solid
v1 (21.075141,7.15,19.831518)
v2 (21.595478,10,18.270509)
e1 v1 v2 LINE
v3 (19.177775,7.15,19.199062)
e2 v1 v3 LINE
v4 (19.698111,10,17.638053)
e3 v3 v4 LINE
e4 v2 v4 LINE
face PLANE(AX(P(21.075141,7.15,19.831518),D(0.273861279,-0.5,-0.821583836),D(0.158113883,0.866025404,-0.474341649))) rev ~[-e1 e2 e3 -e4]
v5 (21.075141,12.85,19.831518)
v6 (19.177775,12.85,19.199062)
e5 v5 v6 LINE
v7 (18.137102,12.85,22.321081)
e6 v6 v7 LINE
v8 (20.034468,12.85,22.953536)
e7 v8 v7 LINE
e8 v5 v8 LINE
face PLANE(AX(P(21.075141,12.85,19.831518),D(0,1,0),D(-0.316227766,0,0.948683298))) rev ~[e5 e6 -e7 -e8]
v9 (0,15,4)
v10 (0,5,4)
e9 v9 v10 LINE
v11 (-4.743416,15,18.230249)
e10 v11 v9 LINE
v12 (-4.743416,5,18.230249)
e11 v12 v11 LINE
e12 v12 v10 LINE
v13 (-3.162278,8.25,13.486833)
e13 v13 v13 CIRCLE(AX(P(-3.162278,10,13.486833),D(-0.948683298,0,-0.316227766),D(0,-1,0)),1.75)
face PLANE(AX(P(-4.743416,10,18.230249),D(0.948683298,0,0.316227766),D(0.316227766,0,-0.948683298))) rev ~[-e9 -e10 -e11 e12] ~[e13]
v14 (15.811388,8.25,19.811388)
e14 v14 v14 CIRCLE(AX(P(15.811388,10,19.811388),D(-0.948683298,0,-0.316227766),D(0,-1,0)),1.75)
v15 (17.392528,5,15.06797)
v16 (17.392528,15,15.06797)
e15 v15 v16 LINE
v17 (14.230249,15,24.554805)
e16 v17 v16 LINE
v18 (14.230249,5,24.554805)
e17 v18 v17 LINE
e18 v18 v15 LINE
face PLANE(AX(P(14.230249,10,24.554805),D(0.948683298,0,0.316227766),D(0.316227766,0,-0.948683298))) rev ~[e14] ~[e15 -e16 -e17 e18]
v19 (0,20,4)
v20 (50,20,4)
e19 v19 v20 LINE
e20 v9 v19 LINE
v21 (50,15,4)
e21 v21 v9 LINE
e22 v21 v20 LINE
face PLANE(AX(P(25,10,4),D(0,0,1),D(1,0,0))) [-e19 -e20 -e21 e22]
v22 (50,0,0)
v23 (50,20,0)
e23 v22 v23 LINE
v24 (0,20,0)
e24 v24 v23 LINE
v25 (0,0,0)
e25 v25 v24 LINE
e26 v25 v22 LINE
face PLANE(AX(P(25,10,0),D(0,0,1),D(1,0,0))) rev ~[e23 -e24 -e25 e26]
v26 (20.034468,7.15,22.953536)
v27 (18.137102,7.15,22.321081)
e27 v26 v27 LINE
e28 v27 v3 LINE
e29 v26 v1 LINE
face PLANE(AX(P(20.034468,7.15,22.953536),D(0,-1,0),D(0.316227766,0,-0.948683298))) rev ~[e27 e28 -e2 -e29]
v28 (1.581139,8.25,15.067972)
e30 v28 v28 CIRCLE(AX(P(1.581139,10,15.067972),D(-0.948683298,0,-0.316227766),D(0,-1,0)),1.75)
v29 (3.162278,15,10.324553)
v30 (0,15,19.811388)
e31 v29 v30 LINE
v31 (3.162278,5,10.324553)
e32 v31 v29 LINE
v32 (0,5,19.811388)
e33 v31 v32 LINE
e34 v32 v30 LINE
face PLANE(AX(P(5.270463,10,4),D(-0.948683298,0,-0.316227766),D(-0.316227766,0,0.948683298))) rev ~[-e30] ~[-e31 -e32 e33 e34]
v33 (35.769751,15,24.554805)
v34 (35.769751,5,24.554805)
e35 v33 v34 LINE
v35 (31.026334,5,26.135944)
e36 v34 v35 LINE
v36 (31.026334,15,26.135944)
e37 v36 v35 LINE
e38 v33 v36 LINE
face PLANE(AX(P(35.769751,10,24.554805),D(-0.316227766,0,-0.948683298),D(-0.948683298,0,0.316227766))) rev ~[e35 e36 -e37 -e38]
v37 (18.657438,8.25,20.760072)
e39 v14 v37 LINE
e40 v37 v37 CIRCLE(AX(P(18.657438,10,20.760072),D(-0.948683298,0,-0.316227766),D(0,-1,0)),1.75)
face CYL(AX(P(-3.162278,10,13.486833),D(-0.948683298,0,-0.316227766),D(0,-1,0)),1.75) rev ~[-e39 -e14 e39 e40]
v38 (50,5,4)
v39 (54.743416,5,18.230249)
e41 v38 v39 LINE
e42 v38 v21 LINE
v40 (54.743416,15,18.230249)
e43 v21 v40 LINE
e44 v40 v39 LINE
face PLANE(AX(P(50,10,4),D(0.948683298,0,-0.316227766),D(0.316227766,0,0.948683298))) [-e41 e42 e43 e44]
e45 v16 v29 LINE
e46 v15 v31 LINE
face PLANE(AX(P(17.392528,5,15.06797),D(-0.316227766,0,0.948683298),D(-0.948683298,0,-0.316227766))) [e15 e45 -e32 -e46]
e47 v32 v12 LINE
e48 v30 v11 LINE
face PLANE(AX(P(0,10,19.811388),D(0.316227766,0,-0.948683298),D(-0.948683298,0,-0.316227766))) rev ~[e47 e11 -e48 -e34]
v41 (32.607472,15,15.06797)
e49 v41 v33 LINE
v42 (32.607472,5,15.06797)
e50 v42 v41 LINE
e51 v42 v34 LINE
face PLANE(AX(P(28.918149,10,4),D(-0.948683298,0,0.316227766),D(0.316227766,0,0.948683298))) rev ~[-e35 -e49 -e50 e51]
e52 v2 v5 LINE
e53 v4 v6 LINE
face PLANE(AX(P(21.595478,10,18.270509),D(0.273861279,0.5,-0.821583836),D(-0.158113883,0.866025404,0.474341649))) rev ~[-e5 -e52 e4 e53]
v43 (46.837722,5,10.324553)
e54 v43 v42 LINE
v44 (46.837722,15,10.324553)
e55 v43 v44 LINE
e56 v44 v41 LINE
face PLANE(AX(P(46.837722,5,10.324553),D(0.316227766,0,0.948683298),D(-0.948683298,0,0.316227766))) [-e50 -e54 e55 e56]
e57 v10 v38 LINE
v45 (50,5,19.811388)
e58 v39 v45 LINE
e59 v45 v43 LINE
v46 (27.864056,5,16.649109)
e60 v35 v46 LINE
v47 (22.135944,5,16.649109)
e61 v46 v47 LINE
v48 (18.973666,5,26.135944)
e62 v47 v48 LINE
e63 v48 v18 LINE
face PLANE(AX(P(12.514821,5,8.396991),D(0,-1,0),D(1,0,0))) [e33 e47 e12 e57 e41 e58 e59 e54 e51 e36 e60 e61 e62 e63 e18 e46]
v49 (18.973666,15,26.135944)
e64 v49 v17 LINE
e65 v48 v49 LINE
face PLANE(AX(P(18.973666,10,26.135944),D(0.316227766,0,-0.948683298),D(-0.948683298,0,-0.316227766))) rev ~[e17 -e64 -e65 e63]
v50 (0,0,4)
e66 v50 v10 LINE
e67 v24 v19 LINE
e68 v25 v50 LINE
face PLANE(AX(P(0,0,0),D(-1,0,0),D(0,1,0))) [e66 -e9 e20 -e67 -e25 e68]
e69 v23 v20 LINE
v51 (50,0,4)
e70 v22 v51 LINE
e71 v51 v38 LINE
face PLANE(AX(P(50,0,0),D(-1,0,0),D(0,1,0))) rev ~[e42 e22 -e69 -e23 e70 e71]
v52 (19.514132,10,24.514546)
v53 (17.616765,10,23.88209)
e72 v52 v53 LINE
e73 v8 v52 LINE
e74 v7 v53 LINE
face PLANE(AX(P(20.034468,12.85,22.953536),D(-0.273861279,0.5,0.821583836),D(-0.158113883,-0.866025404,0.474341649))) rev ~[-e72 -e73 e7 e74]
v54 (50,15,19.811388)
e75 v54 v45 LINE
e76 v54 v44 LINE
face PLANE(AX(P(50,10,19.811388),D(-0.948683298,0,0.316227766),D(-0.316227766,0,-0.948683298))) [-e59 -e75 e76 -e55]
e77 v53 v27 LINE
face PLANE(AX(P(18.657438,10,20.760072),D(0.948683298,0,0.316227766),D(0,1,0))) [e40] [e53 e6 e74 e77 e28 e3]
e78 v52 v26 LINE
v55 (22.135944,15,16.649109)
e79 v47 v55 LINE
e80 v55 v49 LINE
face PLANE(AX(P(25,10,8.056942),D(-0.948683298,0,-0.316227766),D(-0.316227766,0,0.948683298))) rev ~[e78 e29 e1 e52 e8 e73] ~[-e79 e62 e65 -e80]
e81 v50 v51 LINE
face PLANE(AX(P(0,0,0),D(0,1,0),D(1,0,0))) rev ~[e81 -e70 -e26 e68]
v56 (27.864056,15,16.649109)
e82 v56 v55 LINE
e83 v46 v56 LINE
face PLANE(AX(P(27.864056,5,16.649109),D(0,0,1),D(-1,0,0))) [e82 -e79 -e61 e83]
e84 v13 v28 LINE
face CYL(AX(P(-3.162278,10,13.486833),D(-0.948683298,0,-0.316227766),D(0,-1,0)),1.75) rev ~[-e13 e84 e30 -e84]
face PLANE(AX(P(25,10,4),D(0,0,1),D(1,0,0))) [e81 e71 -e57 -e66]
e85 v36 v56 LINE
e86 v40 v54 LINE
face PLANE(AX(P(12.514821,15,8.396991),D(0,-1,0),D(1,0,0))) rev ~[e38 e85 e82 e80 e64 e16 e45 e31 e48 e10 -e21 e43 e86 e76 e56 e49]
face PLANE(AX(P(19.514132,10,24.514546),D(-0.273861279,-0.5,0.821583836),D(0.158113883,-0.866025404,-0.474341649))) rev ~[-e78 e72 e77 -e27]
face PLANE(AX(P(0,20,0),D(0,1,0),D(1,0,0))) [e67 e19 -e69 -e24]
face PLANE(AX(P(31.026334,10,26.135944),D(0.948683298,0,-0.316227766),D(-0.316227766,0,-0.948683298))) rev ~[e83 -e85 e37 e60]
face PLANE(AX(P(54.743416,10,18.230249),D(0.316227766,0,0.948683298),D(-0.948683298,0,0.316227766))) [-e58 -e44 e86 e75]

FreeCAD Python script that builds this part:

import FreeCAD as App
import Part
import Sketcher

V = App.Vector
Q = App.Units.Quantity

doc = App.newDocument("Part")
params = doc.addObject("Spreadsheet::Sheet", "Params")
for row, (alias, value) in enumerate([
    ("sketch1_width", "50 mm"),
    ("sketch1_height", "20 mm"),
    ("pad1_length", "4 mm"),
    ("sketch2_length", "15 mm"),
    ("sketch2_length2", "5 mm"),
    ("pad2_length", "10 mm"),
    ("sketch3_diameter", "3.5 mm"),
    ("pocket1_length", "25 mm"),
    ("pocket2_length", "2 mm"),
    ("pad3_length", "10 mm"),
    ("sketch6_length", "15 mm"),
], start=1):
    params.set(f"A{row}", alias)
    params.set(f"B{row}", "=" + value)
    params.setAlias(f"B{row}", alias)

body = doc.addObject("PartDesign::Body", "Body")

# Sketch on XY plane
sketch1 = body.newObject("Sketcher::SketchObject", "Sketch")
sketch1.AttachmentSupport = (doc.getObject("XY_Plane"), [""])
sketch1.MapMode = "FlatFace"
sketch1.addGeometry(Part.LineSegment(V(0, 20, 0), V(0, 0, 0)), False)
sketch1.addGeometry(Part.LineSegment(V(0, 0, 0), V(50, 0, 0)), False)
sketch1.addGeometry(Part.LineSegment(V(50, 0, 0), V(50, 20, 0)), False)
sketch1.addGeometry(Part.LineSegment(V(50, 20, 0), V(0, 20, 0)), False)
sketch1.addConstraint(Sketcher.Constraint("Coincident", 0, 2, 1, 1))
sketch1.addConstraint(Sketcher.Constraint("Coincident", 1, 2, 2, 1))
sketch1.addConstraint(Sketcher.Constraint("Coincident", 2, 2, 3, 1))
sketch1.addConstraint(Sketcher.Constraint("Coincident", 3, 2, 0, 1))
sketch1.addConstraint(Sketcher.Constraint("Vertical", 0))
sketch1.addConstraint(Sketcher.Constraint("Horizontal", 1))
sketch1.addConstraint(Sketcher.Constraint("Vertical", 2))
sketch1.addConstraint(Sketcher.Constraint("Horizontal", 3))
sketch1.addConstraint(Sketcher.Constraint("Coincident", 0, 2, -1, 1))
sketch1.addConstraint(Sketcher.Constraint("DistanceX", 1, 1, 1, 2, Q("50 mm")))
sketch1.addConstraint(Sketcher.Constraint("DistanceY", 0, 2, 0, 1, Q("20 mm")))
sketch1.setExpression("Constraints[9]", "Params.sketch1_width")
sketch1.setExpression("Constraints[10]", "Params.sketch1_height")
pad1 = body.newObject("PartDesign::Pad", "Pad")
pad1.Profile = sketch1
pad1.setExpression("Length", "Params.pad1_length")

# Sketch on XZ plane
sketch2 = body.newObject("Sketcher::SketchObject", "Sketch001")
sketch2.AttachmentSupport = (doc.getObject("XZ_Plane"), [""])
sketch2.MapMode = "FlatFace"
sketch2.AttachmentOffset = App.Placement(V(0, 0, -10), App.Rotation())
sketch2.addGeometry(Part.LineSegment(V(-4.743416, 18.230249, 0), V(0, 4, 0)), False)
sketch2.addGeometry(Part.LineSegment(V(0, 4, 0), V(5.270463, 4, 0)), False)
sketch2.addGeometry(Part.LineSegment(V(5.270463, 4, 0), V(0, 19.811388, 0)), False)
sketch2.addGeometry(Part.LineSegment(V(0, 19.811388, 0), V(-4.743416, 18.230249, 0)), False)
sketch2.addGeometry(Part.LineSegment(V(14.230249, 24.554805, 0), V(21.081851, 4, 0)), False)
sketch2.addGeometry(Part.LineSegment(V(21.081851, 4, 0), V(28.918149, 4, 0)), False)
sketch2.addGeometry(Part.LineSegment(V(28.918149, 4, 0), V(35.769751, 24.554805, 0)), False)
sketch2.addGeometry(Part.LineSegment(V(35.769751, 24.554805, 0), V(31.026334, 26.135944, 0)), False)
sketch2.addGeometry(Part.LineSegment(V(31.026334, 26.135944, 0), V(25, 8.056942, 0)), False)
sketch2.addGeometry(Part.LineSegment(V(25, 8.056942, 0), V(18.973666, 26.135944, 0)), False)
sketch2.addGeometry(Part.LineSegment(V(18.973666, 26.135944, 0), V(14.230249, 24.554805, 0)), False)
sketch2.addGeometry(Part.LineSegment(V(50, 4, 0), V(54.743416, 18.230249, 0)), False)
sketch2.addGeometry(Part.LineSegment(V(54.743416, 18.230249, 0), V(50, 19.811388, 0)), False)
sketch2.addGeometry(Part.LineSegment(V(50, 19.811388, 0), V(44.729537, 4, 0)), False)
sketch2.addGeometry(Part.LineSegment(V(44.729537, 4, 0), V(50, 4, 0)), False)
sketch2.addConstraint(Sketcher.Constraint("Coincident", 0, 2, 1, 1))
sketch2.addConstraint(Sketcher.Constraint("Coincident", 1, 2, 2, 1))
sketch2.addConstraint(Sketcher.Constraint("Coincident", 2, 2, 3, 1))
sketch2.addConstraint(Sketcher.Constraint("Coincident", 3, 2, 0, 1))
sketch2.addConstraint(Sketcher.Constraint("Coincident", 4, 2, 5, 1))
sketch2.addConstraint(Sketcher.Constraint("Coincident", 5, 2, 6, 1))
sketch2.addConstraint(Sketcher.Constraint("Coincident", 6, 2, 7, 1))
sketch2.addConstraint(Sketcher.Constraint("Coincident", 7, 2, 8, 1))
sketch2.addConstraint(Sketcher.Constraint("Coincident", 8, 2, 9, 1))
sketch2.addConstraint(Sketcher.Constraint("Coincident", 9, 2, 10, 1))
sketch2.addConstraint(Sketcher.Constraint("Coincident", 10, 2, 4, 1))
sketch2.addConstraint(Sketcher.Constraint("Coincident", 11, 2, 12, 1))
sketch2.addConstraint(Sketcher.Constraint("Coincident", 12, 2, 13, 1))
sketch2.addConstraint(Sketcher.Constraint("Coincident", 13, 2, 14, 1))
sketch2.addConstraint(Sketcher.Constraint("Coincident", 14, 2, 11, 1))
sketch2.addConstraint(Sketcher.Constraint("Horizontal", 1))
sketch2.addConstraint(Sketcher.Constraint("Horizontal", 5))
sketch2.addConstraint(Sketcher.Constraint("Horizontal", 14))
sketch2.addConstraint(Sketcher.Constraint("PointOnObject", 0, 2, -2))
sketch2.addConstraint(Sketcher.Constraint("PointOnObject", 2, 2, -2))
sketch2.addConstraint(Sketcher.Constraint("Parallel", 0, 2))
sketch2.addConstraint(Sketcher.Constraint("Perpendicular", 2, 3))
sketch2.addConstraint(Sketcher.Constraint("Perpendicular", 3, 4))
sketch2.addConstraint(Sketcher.Constraint("Perpendicular", 6, 7))
sketch2.addConstraint(Sketcher.Constraint("Perpendicular", 7, 8))
sketch2.addConstraint(Sketcher.Constraint("Parallel", 4, 9))
sketch2.addConstraint(Sketcher.Constraint("Perpendicular", 9, 10))
sketch2.addConstraint(Sketcher.Constraint("Parallel", 8, 11))
sketch2.addConstraint(Sketcher.Constraint("Perpendicular", 11, 12))
sketch2.addConstraint(Sketcher.Constraint("Perpendicular", 12, 13))
sketch2.addConstraint(Sketcher.Constraint("Horizontal", 1, 2, 4, 2))
sketch2.addConstraint(Sketcher.Constraint("Horizontal", 7, 2, 9, 2))
sketch2.addConstraint(Sketcher.Constraint("Horizontal", 6, 2, 10, 2))
sketch2.addConstraint(Sketcher.Constraint("Horizontal", 3, 2, 11, 2))
sketch2.addConstraint(Sketcher.Constraint("Horizontal", 2, 2, 12, 2))
sketch2.addConstraint(Sketcher.Constraint("Horizontal", 5, 2, 13, 2))
sketch2.addConstraint(Sketcher.Constraint("Vertical", 12, 2, 14, 2))
sketch2.addConstraint(Sketcher.Constraint("Equal", 3, 7))
sketch2.addConstraint(Sketcher.Constraint("Distance", 0, Q("15 mm")))
sketch2.addConstraint(Sketcher.Constraint("Distance", 3, Q("5 mm")))
sketch2.addConstraint(Sketcher.Constraint("DistanceY", -1, 1, 0, 2, Q("4 mm")))
sketch2.addConstraint(Sketcher.Constraint("DistanceX", -1, 1, 8, 2, Q("25 mm")))
sketch2.addConstraint(Sketcher.Constraint("DistanceX", -1, 1, 12, 2, Q("50 mm")))
sketch2.addConstraint(Sketcher.Constraint("DistanceX", 5, 2, 6, 2, Q("6.851602 mm")))
sketch2.addConstraint(Sketcher.Constraint("DistanceX", 4, 2, 6, 2, Q("14.687899 mm")))
sketch2.setExpression("Constraints[38]", "Params.sketch2_length")
sketch2.setExpression("Constraints[39]", "Params.sketch2_length2")
pad2 = body.newObject("PartDesign::Pad", "Pad001")
pad2.Profile = sketch2
pad2.setExpression("Length", "Params.pad2_length")
pad2.Midplane = True

# Sketch on an angled plane
sketch3 = body.newObject("Sketcher::SketchObject", "Sketch002")
sketch3.Placement = App.Placement(V(1.2, 0, 0.4), App.Rotation(V(0, -1, 0), V(-0.316227766, 0, 0.948683298), V(-0.948683298, 0, -0.316227766), "ZXY"))
sketch3.addGeometry(Part.Circle(V(-10, 13.794733, 0), V(0, 0, 1), 1.75), False)
sketch3.addConstraint(Sketcher.Constraint("Diameter", 0, Q("3.5 mm")))
sketch3.addConstraint(Sketcher.Constraint("DistanceX", 0, 3, -1, 1, Q("10 mm")))
sketch3.addConstraint(Sketcher.Constraint("DistanceY", -1, 1, 0, 3, Q("13.794733 mm")))
sketch3.setExpression("Constraints[0]", "Params.sketch3_diameter")
pocket1 = body.newObject("PartDesign::Pocket", "Pocket")
pocket1.Profile = sketch3
pocket1.setExpression("Length", "Params.pocket1_length")

# Sketch on an angled plane
sketch4 = body.newObject("Sketcher::SketchObject", "Sketch003")
sketch4.Placement = App.Placement(V(24.917082, 0, 8.305694), App.Rotation(V(0, 1, 0), V(-0.316227766, 0, 0.948683298), V(0.948683298, 0, 0.316227766), "ZXY"))
sketch4.addGeometry(Part.LineSegment(V(12.85, 12.149285, 0), V(12.85, 15.440181, 0)), False)
sketch4.addGeometry(Part.LineSegment(V(12.85, 15.440181, 0), V(10, 17.08563, 0)), False)
sketch4.addGeometry(Part.LineSegment(V(10, 17.08563, 0), V(7.15, 15.440181, 0)), False)
sketch4.addGeometry(Part.LineSegment(V(7.15, 15.440181, 0), V(7.15, 12.149285, 0)), False)
sketch4.addGeometry(Part.LineSegment(V(7.15, 12.149285, 0), V(10, 10.503837, 0)), False)
sketch4.addGeometry(Part.LineSegment(V(10, 10.503837, 0), V(12.85, 12.149285, 0)), False)
sketch4.addConstraint(Sketcher.Constraint("Coincident", 0, 2, 1, 1))
sketch4.addConstraint(Sketcher.Constraint("Coincident", 1, 2, 2, 1))
sketch4.addConstraint(Sketcher.Constraint("Coincident", 2, 2, 3, 1))
sketch4.addConstraint(Sketcher.Constraint("Coincident", 3, 2, 4, 1))
sketch4.addConstraint(Sketcher.Constraint("Coincident", 4, 2, 5, 1))
sketch4.addConstraint(Sketcher.Constraint("Coincident", 5, 2, 0, 1))
sketch4.addConstraint(Sketcher.Constraint("Vertical", 0))
sketch4.addConstraint(Sketcher.Constraint("Vertical", 3))
sketch4.addConstraint(Sketcher.Constraint("Parallel", 1, 4))
sketch4.addConstraint(Sketcher.Constraint("Parallel", 2, 5))
sketch4.addConstraint(Sketcher.Constraint("Horizontal", 0, 2, 2, 2))
sketch4.addConstraint(Sketcher.Constraint("Horizontal", 3, 2, 5, 2))
sketch4.addConstraint(Sketcher.Constraint("Vertical", 1, 2, 4, 2))
sketch4.addConstraint(Sketcher.Constraint("Angle", 1, Q("150 deg")))
sketch4.addConstraint(Sketcher.Constraint("DistanceX", -1, 1, 1, 2, Q("10 mm")))
sketch4.addConstraint(Sketcher.Constraint("DistanceX", 2, 2, 0, 2, Q("5.7 mm")))
sketch4.addConstraint(Sketcher.Constraint("DistanceY", 0, 1, 0, 2, Q("3.290897 mm")))
sketch4.addConstraint(Sketcher.Constraint("DistanceY", -1, 1, 0, 2, Q("15.440181 mm")))
pocket2 = body.newObject("PartDesign::Pocket", "Pocket001")
pocket2.Profile = sketch4
pocket2.setExpression("Length", "Params.pocket2_length")

# Sketch on XZ plane
sketch5 = body.newObject("Sketcher::SketchObject", "Sketch004")
sketch5.AttachmentSupport = (doc.getObject("XZ_Plane"), [""])
sketch5.MapMode = "FlatFace"
sketch5.AttachmentOffset = App.Placement(V(0, 0, -5), App.Rotation())
sketch5.addGeometry(Part.LineSegment(V(22.135944, 16.649109, 0), V(25, 8.056942, 0)), False)
sketch5.addGeometry(Part.LineSegment(V(25, 8.056942, 0), V(27.864056, 16.649109, 0)), False)
sketch5.addGeometry(Part.LineSegment(V(27.864056, 16.649109, 0), V(22.135944, 16.649109, 0)), False)
sketch5.addConstraint(Sketcher.Constraint("Coincident", 0, 2, 1, 1))
sketch5.addConstraint(Sketcher.Constraint("Coincident", 1, 2, 2, 1))
sketch5.addConstraint(Sketcher.Constraint("Coincident", 2, 2, 0, 1))
sketch5.addConstraint(Sketcher.Constraint("Horizontal", 2))
sketch5.addConstraint(Sketcher.Constraint("Equal", 0, 1))
sketch5.addConstraint(Sketcher.Constraint("DistanceX", -1, 1, 0, 2, Q("25 mm")))
sketch5.addConstraint(Sketcher.Constraint("DistanceX", 2, 2, 2, 1, Q("5.728111 mm")))
sketch5.addConstraint(Sketcher.Constraint("Distance", 0, Q("9.056939 mm")))
sketch5.addConstraint(Sketcher.Constraint("DistanceY", -1, 1, 0, 2, Q("8.056942 mm")))
pad3 = body.newObject("PartDesign::Pad", "Pad002")
pad3.Profile = sketch5
pad3.setExpression("Length", "Params.pad3_length")
pad3.Reversed = True

# Sketch on XZ plane
sketch6 = body.newObject("Sketcher::SketchObject", "Sketch005")
sketch6.AttachmentSupport = (doc.getObject("XZ_Plane"), [""])
sketch6.MapMode = "FlatFace"
sketch6.AttachmentOffset = App.Placement(V(0, 0, -5), App.Rotation())
sketch6.addGeometry(Part.LineSegment(V(17.392528, 15.06797, 0), V(3.162278, 10.324553, 0)), False)
sketch6.addGeometry(Part.LineSegment(V(3.162278, 10.324553, 0), V(5.270463, 4, 0)), False)
sketch6.addGeometry(Part.LineSegment(V(5.270463, 4, 0), V(21.081851, 4, 0)), False)
sketch6.addGeometry(Part.LineSegment(V(21.081851, 4, 0), V(17.392528, 15.06797, 0)), False)
sketch6.addGeometry(Part.LineSegment(V(28.918149, 4, 0), V(44.729537, 4, 0)), False)
sketch6.addGeometry(Part.LineSegment(V(44.729537, 4, 0), V(46.837722, 10.324553, 0)), False)
sketch6.addGeometry(Part.LineSegment(V(46.837722, 10.324553, 0), V(32.607472, 15.06797, 0)), False)
sketch6.addGeometry(Part.LineSegment(V(32.607472, 15.06797, 0), V(28.918149, 4, 0)), False)
sketch6.addConstraint(Sketcher.Constraint("Coincident", 0, 2, 1, 1))
sketch6.addConstraint(Sketcher.Constraint("Coincident", 1, 2, 2, 1))
sketch6.addConstraint(Sketcher.Constraint("Coincident", 2, 2, 3, 1))
sketch6.addConstraint(Sketcher.Constraint("Coincident", 3, 2, 0, 1))
sketch6.addConstraint(Sketcher.Constraint("Coincident", 4, 2, 5, 1))
sketch6.addConstraint(Sketcher.Constraint("Coincident", 5, 2, 6, 1))
sketch6.addConstraint(Sketcher.Constraint("Coincident", 6, 2, 7, 1))
sketch6.addConstraint(Sketcher.Constraint("Coincident", 7, 2, 4, 1))
sketch6.addConstraint(Sketcher.Constraint("Horizontal", 2))
sketch6.addConstraint(Sketcher.Constraint("Horizontal", 4))
sketch6.addConstraint(Sketcher.Constraint("Perpendicular", 0, 1))
sketch6.addConstraint(Sketcher.Constraint("Parallel", 1, 3))
sketch6.addConstraint(Sketcher.Constraint("Perpendicular", 5, 6))
sketch6.addConstraint(Sketcher.Constraint("Perpendicular", 6, 7))
sketch6.addConstraint(Sketcher.Constraint("Horizontal", 2, 2, 4, 2))
sketch6.addConstraint(Sketcher.Constraint("Horizontal", 0, 2, 5, 2))
sketch6.addConstraint(Sketcher.Constraint("Horizontal", 3, 2, 6, 2))
sketch6.addConstraint(Sketcher.Constraint("Equal", 2, 4))
sketch6.addConstraint(Sketcher.Constraint("Distance", 0, Q("15 mm")))
sketch6.addConstraint(Sketcher.Constraint("DistanceY", -1, 1, 1, 2, Q("4 mm")))
sketch6.addConstraint(Sketcher.Constraint("DistanceX", 2, 1, 2, 2, Q("15.811388 mm")))
sketch6.addConstraint(Sketcher.Constraint("DistanceX", -1, 1, 0, 2, Q("3.162278 mm")))
sketch6.addConstraint(Sketcher.Constraint("DistanceX", -1, 1, 2, 2, Q("21.081851 mm")))
sketch6.addConstraint(Sketcher.Constraint("DistanceX", -1, 1, 5, 2, Q("46.837722 mm")))
sketch6.setExpression("Constraints[18]", "Params.sketch6_length")
pad4 = body.newObject("PartDesign::Pad", "Pad003")
pad4.Profile = sketch6
pad4.Type = "UpToLast"
pad4.Reversed = True

doc.recompute()
